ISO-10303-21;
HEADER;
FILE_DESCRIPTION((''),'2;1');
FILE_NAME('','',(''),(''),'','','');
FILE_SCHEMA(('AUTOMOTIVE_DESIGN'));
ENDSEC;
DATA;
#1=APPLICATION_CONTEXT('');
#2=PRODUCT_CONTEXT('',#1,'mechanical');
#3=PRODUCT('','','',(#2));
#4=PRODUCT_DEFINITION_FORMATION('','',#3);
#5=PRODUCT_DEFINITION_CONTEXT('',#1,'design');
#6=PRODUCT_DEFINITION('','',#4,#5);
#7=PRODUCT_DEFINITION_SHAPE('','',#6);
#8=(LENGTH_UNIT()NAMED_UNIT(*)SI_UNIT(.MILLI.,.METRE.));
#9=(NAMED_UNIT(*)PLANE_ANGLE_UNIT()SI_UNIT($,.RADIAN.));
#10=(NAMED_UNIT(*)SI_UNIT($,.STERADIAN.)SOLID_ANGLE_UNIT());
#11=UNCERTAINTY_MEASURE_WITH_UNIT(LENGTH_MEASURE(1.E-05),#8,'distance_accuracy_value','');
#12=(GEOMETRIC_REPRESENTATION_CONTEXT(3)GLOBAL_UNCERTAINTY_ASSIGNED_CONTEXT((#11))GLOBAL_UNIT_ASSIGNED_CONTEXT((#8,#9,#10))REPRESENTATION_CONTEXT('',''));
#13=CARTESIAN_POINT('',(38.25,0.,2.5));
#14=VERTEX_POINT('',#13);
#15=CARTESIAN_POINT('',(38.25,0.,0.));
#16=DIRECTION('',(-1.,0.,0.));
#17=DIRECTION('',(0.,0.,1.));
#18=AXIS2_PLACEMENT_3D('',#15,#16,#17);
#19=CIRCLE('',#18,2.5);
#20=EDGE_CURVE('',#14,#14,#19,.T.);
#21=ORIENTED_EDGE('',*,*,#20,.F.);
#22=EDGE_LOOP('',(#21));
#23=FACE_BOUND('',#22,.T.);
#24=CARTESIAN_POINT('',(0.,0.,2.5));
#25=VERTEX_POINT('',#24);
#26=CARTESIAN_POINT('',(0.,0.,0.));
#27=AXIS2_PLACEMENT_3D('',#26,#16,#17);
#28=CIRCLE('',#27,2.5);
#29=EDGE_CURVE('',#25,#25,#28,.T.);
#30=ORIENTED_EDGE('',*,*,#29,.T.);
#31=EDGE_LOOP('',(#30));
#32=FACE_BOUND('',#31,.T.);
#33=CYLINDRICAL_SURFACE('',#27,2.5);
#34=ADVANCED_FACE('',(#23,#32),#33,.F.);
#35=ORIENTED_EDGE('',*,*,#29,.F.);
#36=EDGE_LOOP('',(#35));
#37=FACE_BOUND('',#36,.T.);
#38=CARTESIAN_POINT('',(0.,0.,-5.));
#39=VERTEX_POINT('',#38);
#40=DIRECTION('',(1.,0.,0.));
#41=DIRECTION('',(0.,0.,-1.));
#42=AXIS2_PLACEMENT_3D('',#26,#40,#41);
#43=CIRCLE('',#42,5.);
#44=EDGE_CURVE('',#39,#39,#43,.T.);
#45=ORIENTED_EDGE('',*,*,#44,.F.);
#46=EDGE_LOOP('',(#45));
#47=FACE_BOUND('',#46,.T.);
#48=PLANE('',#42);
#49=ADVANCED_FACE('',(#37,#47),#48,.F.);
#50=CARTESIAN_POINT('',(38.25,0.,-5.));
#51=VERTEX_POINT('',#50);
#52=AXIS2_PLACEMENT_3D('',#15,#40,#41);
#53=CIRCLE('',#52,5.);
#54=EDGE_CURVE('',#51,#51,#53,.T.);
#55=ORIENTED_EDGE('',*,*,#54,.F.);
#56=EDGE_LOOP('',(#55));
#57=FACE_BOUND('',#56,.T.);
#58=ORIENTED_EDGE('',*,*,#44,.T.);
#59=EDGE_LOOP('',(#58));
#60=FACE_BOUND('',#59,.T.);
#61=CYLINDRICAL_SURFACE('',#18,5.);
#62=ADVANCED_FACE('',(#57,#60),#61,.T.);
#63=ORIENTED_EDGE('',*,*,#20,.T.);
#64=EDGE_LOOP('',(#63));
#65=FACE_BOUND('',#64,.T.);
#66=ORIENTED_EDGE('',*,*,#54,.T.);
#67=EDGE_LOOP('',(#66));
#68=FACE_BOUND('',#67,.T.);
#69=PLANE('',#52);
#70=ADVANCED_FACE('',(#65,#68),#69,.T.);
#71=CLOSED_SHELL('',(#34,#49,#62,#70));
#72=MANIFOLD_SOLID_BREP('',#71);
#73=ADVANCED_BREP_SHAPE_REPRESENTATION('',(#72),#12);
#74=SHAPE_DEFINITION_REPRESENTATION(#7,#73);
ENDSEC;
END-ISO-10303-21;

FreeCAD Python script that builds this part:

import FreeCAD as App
import Part
import Sketcher
Q = App.Units.Quantity

doc = App.newDocument("Part")
body = doc.addObject("PartDesign::Body", "Body")

sketch1 = doc.addObject("Sketcher::SketchObject", "Sketch")
body.addObject(sketch1)
sketch1.AttachmentSupport = (doc.YZ_Plane, [""])
sketch1.MapMode = "FlatFace"
sketch1.addGeometry(Part.Circle(App.Vector(0, 0, 0), App.Vector(0, 0, 1), 5), False)
sketch1.addConstraint(Sketcher.Constraint("Coincident", 0, 3, -1, 1))
sketch1.addConstraint(Sketcher.Constraint("Diameter", 0, Q("10 mm")))
pad1 = doc.addObject("PartDesign::Pad", "Pad")
body.addObject(pad1)
pad1.Profile = sketch1
pad1.Length = 38.25

sketch2 = doc.addObject("Sketcher::SketchObject", "Sketch001")
body.addObject(sketch2)
sketch2.AttachmentSupport = (doc.YZ_Plane, [""])
sketch2.MapMode = "FlatFace"
sketch2.addGeometry(Part.Circle(App.Vector(0, 0, 0), App.Vector(0, 0, 1), 2.5), False)
sketch2.addConstraint(Sketcher.Constraint("Coincident", 0, 3, -1, 1))
sketch2.addConstraint(Sketcher.Constraint("Diameter", 0, Q("5 mm")))
doc.recompute()
hole = doc.addObject("PartDesign::Hole", "Hole")
body.addObject(hole)
hole.Profile = sketch2
hole.ThreadType = "None"
hole.Diameter = 5
hole.DepthType = "ThroughAll"
hole.Reversed = True

doc.recompute()
